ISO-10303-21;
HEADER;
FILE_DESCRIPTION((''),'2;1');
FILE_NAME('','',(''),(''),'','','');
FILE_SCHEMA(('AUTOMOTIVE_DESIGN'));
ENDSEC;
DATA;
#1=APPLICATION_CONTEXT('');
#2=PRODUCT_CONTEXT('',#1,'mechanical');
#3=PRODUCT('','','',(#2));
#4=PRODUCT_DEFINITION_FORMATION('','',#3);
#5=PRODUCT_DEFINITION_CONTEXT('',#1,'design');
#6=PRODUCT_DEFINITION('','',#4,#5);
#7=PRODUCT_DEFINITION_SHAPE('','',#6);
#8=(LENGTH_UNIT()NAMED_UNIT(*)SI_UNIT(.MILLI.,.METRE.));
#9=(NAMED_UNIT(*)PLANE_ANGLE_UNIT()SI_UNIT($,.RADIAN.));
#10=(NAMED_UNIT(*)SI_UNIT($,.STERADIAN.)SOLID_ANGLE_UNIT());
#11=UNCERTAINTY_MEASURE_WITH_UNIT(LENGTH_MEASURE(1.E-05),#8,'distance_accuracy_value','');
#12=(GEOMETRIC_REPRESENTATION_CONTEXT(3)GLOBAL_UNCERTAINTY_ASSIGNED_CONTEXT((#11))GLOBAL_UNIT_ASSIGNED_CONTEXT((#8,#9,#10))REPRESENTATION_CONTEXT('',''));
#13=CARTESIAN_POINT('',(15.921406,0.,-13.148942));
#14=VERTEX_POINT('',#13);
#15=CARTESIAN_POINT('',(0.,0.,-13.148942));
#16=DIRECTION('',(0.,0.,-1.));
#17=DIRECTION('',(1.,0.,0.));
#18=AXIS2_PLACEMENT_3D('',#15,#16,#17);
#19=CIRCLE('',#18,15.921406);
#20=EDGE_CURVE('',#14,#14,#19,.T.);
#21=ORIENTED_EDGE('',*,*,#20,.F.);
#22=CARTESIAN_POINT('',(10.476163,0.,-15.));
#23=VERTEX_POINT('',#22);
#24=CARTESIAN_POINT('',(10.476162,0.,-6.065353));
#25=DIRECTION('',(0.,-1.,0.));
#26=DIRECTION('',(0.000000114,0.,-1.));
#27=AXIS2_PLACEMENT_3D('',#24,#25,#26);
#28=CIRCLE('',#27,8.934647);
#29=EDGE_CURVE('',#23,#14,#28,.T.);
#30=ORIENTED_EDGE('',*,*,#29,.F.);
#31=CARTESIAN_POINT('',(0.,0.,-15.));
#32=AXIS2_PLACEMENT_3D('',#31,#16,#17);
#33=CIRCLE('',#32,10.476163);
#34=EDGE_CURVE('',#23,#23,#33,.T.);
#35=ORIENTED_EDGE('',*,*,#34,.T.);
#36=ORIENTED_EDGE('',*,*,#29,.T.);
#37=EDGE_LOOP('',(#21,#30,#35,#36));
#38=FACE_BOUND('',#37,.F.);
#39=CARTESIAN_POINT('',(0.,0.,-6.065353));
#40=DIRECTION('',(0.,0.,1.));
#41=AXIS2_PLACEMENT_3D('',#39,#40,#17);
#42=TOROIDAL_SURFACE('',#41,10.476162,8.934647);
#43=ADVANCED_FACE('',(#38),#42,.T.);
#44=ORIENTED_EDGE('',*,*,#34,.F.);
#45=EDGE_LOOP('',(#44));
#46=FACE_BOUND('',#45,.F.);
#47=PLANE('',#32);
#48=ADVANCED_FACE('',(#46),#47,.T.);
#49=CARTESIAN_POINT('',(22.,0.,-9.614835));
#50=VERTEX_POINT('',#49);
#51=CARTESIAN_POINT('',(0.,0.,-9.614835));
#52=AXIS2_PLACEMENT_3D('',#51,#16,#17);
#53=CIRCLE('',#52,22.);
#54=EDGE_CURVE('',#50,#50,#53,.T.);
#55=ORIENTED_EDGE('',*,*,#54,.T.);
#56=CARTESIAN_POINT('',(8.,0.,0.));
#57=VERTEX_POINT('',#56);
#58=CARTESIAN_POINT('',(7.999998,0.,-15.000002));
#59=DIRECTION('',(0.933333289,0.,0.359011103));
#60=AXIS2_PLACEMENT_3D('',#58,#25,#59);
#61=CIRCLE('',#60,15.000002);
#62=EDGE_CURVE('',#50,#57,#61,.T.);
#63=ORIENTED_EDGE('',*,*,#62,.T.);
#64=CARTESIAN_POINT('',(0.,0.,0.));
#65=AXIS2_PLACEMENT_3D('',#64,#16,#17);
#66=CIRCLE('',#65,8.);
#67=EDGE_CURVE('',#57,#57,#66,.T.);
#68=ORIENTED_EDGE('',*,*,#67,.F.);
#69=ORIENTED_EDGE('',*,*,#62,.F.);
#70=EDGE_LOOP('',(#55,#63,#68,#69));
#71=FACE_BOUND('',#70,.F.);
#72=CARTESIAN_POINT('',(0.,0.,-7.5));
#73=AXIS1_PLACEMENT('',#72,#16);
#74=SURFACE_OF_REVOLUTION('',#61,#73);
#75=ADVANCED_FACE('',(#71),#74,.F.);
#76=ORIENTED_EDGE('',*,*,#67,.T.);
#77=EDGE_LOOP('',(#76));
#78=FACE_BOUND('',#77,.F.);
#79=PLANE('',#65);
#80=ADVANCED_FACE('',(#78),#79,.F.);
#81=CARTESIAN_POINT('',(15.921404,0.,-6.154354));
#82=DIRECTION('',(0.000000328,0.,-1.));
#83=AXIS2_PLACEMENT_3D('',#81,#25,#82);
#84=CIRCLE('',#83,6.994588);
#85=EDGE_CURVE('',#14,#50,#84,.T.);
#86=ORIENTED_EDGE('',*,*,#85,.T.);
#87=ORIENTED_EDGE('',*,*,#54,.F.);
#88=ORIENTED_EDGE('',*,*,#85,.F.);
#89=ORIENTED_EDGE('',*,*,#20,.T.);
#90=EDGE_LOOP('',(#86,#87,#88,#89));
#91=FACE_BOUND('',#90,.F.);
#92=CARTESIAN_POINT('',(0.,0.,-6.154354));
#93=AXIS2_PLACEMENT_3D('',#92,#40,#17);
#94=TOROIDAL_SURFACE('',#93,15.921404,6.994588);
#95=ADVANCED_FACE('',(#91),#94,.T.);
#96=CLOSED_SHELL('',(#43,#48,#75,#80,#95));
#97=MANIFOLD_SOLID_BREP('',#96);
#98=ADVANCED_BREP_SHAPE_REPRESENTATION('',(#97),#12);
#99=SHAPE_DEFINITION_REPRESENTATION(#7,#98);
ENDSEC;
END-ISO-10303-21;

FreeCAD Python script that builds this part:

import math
import FreeCAD as App
import Part
import Sketcher
from FreeCAD import Vector

doc = App.newDocument("Part")
body = doc.addObject("PartDesign::Body", "Body")

# Sketch on XZ plane
sketch1 = doc.addObject("Sketcher::SketchObject", "Sketch")
body.addObject(sketch1)
sketch1.AttachmentSupport = (doc.XZ_Plane, [""])
sketch1.MapMode = "FlatFace"
sketch1.addGeometry(Part.LineSegment(Vector(8, 0, 0), Vector(0, 0, 0)), False)
sketch1.addGeometry(Part.LineSegment(Vector(0, 0, 0), Vector(0, -15, 0)), False)
sketch1.addGeometry(Part.LineSegment(Vector(0, -15, 0), Vector(10, -15, 0)), False)
sketch1.addGeometry(Part.ArcOfCircle(Part.Circle(Vector(10, -6, 0), Vector(0, 0, 1), 9), math.radians(-90), math.radians(-52)), False)
sketch1.addGeometry(Part.ArcOfCircle(Part.Circle(Vector(16, -6, 0), Vector(0, 0, 1), 7), math.radians(-90), math.radians(-30)), False)
sketch1.addGeometry(Part.ArcOfCircle(Part.Circle(Vector(8, -15, 0), Vector(0, 0, 1), 15), math.radians(21), math.radians(90)), False)
sketch1.addConstraint(Sketcher.Constraint("Coincident", 0, 2, 1, 1))
sketch1.addConstraint(Sketcher.Constraint("Coincident", 1, 2, 2, 1))
sketch1.addConstraint(Sketcher.Constraint("Tangent", 2, 2, 3, 1))
sketch1.addConstraint(Sketcher.Constraint("Coincident", 3, 2, 4, 1))
sketch1.addConstraint(Sketcher.Constraint("Coincident", 4, 2, 5, 1))
sketch1.addConstraint(Sketcher.Constraint("Tangent", 5, 2, 0, 1))
sketch1.addConstraint(Sketcher.Constraint("Horizontal", 0))
sketch1.addConstraint(Sketcher.Constraint("Vertical", 1))
sketch1.addConstraint(Sketcher.Constraint("Horizontal", 2))
sketch1.addConstraint(Sketcher.Constraint("Coincident", 0, 2, -1, 1))
sketch1.addConstraint(Sketcher.Constraint("DistanceX", 0, 2, 0, 1, 8.0))
sketch1.addConstraint(Sketcher.Constraint("DistanceY", 1, 2, 1, 1, 15.0))
sketch1.addConstraint(Sketcher.Constraint("DistanceX", -1, 1, 4, 2, 22.0))
sketch1.addConstraint(Sketcher.Constraint("Radius", 4, 6.994588))
sketch1.addConstraint(Sketcher.Constraint("Radius", 3, 8.934647))
sketch1.addConstraint(Sketcher.Constraint("Radius", 5, 15.000002))
sketch1.addConstraint(Sketcher.Constraint("DistanceY", 4, 3, 3, 3, 0.089001))
sketch1.addConstraint(Sketcher.Constraint("DistanceX", 2, 1, 2, 2, 10.476163))
revolution = doc.addObject("PartDesign::Revolution", "Revolution")
body.addObject(revolution)
revolution.Profile = sketch1
revolution.ReferenceAxis = (sketch1, ["V_Axis"])
revolution.Angle = 360

doc.recompute()
